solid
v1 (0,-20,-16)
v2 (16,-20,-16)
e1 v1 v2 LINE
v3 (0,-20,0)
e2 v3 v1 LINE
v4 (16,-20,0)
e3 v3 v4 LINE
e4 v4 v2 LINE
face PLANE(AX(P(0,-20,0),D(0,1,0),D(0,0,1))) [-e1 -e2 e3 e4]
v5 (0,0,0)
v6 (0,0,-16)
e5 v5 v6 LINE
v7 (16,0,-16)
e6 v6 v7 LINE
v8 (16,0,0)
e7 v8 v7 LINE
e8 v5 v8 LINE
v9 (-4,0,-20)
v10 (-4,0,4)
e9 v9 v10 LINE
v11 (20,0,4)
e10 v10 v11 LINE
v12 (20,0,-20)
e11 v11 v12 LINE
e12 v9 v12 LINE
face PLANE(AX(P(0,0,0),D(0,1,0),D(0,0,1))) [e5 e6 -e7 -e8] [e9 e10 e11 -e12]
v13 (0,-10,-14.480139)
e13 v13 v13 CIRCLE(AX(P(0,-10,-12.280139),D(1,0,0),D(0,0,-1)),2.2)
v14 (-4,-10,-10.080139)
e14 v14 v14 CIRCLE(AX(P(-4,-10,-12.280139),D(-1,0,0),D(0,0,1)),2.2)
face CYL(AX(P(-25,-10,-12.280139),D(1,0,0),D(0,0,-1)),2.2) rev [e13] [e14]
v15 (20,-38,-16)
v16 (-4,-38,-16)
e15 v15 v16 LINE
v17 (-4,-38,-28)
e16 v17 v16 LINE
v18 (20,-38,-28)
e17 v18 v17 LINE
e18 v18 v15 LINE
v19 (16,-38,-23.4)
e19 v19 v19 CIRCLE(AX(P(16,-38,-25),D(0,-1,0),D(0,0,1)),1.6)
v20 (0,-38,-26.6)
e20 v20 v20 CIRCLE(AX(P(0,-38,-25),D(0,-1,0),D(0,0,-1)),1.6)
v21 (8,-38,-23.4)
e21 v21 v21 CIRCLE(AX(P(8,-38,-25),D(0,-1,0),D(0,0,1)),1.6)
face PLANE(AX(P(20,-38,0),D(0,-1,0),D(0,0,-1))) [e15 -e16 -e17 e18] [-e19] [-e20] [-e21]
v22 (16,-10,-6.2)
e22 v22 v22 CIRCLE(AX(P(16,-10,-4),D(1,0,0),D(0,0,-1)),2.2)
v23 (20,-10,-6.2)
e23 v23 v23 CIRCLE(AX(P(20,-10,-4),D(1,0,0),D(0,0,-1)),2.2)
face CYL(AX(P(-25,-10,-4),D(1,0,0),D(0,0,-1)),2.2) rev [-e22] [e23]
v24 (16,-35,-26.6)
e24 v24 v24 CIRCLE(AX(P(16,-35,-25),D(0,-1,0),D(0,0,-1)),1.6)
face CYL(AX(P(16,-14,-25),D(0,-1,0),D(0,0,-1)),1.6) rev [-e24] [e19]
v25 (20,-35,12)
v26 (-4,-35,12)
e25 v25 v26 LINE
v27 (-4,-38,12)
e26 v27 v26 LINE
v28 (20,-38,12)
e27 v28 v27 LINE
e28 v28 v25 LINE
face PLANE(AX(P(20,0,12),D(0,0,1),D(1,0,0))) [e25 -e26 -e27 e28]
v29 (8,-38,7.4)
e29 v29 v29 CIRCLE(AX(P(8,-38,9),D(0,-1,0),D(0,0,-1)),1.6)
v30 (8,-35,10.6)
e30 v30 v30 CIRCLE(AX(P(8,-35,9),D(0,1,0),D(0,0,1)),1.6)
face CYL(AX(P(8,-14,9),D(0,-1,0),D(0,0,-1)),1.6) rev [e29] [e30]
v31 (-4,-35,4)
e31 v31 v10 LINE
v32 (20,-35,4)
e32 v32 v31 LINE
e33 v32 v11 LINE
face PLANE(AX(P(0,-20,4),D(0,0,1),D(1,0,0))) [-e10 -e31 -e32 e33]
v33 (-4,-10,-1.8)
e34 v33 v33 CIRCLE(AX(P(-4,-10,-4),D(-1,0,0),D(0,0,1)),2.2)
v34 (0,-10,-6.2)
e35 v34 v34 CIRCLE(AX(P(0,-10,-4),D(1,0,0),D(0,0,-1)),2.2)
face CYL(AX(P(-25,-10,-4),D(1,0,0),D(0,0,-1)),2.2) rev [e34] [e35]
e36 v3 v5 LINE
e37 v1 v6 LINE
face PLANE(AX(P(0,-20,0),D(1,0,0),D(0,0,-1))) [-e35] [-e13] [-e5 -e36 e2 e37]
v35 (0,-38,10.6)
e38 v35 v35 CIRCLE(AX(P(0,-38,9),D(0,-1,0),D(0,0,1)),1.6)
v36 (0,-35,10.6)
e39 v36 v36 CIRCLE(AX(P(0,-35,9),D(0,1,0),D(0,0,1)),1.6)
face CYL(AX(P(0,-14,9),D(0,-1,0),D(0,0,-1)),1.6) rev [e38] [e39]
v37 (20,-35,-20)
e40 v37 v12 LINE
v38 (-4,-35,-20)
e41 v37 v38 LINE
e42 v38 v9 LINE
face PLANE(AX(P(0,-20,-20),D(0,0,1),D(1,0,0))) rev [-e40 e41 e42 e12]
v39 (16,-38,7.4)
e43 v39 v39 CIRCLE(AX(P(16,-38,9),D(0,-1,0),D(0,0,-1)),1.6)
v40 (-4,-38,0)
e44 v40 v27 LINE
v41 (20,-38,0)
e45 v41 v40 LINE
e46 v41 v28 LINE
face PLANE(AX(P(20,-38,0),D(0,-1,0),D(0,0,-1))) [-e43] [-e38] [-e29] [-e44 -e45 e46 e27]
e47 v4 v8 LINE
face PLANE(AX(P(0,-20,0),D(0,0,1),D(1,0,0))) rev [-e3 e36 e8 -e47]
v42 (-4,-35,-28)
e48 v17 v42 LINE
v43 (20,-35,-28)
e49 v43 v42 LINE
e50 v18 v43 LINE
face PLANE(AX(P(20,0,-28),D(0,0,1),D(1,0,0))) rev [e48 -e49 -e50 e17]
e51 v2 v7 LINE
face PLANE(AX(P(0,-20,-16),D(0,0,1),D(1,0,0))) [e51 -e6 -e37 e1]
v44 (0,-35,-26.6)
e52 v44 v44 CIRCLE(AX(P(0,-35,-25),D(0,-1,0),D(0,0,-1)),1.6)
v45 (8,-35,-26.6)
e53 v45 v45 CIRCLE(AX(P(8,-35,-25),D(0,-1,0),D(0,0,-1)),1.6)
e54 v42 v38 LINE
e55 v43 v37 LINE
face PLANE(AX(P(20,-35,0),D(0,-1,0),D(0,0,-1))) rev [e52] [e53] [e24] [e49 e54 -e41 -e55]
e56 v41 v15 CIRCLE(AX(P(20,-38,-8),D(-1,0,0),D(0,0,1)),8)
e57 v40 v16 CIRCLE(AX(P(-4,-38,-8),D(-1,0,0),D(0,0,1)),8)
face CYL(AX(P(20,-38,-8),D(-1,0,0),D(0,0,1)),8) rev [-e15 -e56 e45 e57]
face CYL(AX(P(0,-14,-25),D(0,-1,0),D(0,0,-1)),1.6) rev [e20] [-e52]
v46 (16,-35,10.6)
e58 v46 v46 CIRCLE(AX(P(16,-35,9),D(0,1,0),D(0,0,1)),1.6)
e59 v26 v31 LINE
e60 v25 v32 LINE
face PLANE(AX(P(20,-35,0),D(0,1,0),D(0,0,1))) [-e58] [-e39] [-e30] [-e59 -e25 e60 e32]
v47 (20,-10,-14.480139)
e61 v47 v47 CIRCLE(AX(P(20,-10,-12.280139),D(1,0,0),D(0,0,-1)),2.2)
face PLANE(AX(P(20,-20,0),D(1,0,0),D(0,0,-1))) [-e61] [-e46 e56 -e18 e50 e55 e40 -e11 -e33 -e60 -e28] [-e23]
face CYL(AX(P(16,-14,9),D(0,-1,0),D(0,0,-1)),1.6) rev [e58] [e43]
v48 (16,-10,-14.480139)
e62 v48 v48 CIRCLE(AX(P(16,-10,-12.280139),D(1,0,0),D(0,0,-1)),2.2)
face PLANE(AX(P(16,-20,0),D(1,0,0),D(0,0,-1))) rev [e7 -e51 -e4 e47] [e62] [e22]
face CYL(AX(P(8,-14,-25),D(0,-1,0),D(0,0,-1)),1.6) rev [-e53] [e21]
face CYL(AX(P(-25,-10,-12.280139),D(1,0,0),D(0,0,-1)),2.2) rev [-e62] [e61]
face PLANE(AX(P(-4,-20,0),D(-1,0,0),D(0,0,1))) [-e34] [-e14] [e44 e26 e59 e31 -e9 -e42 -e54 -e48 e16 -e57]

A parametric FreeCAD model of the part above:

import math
import FreeCAD as App
import Part
import Sketcher


def add_polygon(sketch, points):
    """Adds a closed chain of lines whose ends are joined by coincident constraints."""
    first, n = sketch.GeometryCount, len(points)
    for a, b in zip(points, points[1:] + points[:1]):
        sketch.addGeometry(Part.LineSegment(App.Vector(*a, 0), App.Vector(*b, 0)), False)
    for i in range(n):
        sketch.addConstraint(Sketcher.Constraint("Coincident", first + i, 2, first + (i + 1) % n, 1))

doc = App.newDocument("Part")
body = doc.addObject("PartDesign::Body", "Body")

sketch1 = doc.addObject("Sketcher::SketchObject", "Sketch")
body.addObject(sketch1)
sketch1.AttachmentSupport = (doc.XZ_Plane, [""])
sketch1.MapMode = "FlatFace"
add_polygon(sketch1, [(-4, -20), (-4, 4), (20, 4), (20, -20)])
add_polygon(sketch1, [(16, 0), (0, 0), (0, -16), (16, -16)])
sketch1.addConstraint(Sketcher.Constraint("Vertical", 0))
sketch1.addConstraint(Sketcher.Constraint("Horizontal", 1))
sketch1.addConstraint(Sketcher.Constraint("Vertical", 2))
sketch1.addConstraint(Sketcher.Constraint("Horizontal", 3))
sketch1.addConstraint(Sketcher.Constraint("Horizontal", 4))
sketch1.addConstraint(Sketcher.Constraint("Vertical", 5))
sketch1.addConstraint(Sketcher.Constraint("Horizontal", 6))
sketch1.addConstraint(Sketcher.Constraint("Vertical", 7))
sketch1.addConstraint(Sketcher.Constraint("Coincident", 4, 2, -1, 1))
sketch1.addConstraint(Sketcher.Constraint("Equal", 3, 0))
sketch1.addConstraint(Sketcher.Constraint("Equal", 6, 5))
sketch1.addConstraint(Sketcher.Constraint("DistanceX", 1, 1, 1, 2, 24.0))
sketch1.addConstraint(Sketcher.Constraint("DistanceX", 4, 2, 4, 1, 16.0))
sketch1.addConstraint(Sketcher.Constraint("DistanceX", 0, 2, -1, 1, 4.0))
sketch1.addConstraint(Sketcher.Constraint("DistanceY", -1, 1, 0, 2, 4.0))
pad1 = doc.addObject("PartDesign::Pad", "Pad")
body.addObject(pad1)
pad1.Profile = sketch1
pad1.Length = 20

sketch2 = doc.addObject("Sketcher::SketchObject", "Sketch001")
body.addObject(sketch2)
sketch2.AttachmentSupport = (doc.XZ_Plane, [""])
sketch2.MapMode = "FlatFace"
sketch2.AttachmentOffset = App.Placement(App.Vector(0, 0, 20), App.Rotation())
add_polygon(sketch2, [(-4, 4), (-4, -20), (20, -20), (20, 4)])
sketch2.addConstraint(Sketcher.Constraint("Vertical", 0))
sketch2.addConstraint(Sketcher.Constraint("Horizontal", 1))
sketch2.addConstraint(Sketcher.Constraint("Vertical", 2))
sketch2.addConstraint(Sketcher.Constraint("Horizontal", 3))
sketch2.addConstraint(Sketcher.Constraint("Equal", 3, 0))
sketch2.addConstraint(Sketcher.Constraint("DistanceX", 1, 1, 1, 2, 24.0))
sketch2.addConstraint(Sketcher.Constraint("DistanceX", 0, 2, -1, 1, 4.0))
sketch2.addConstraint(Sketcher.Constraint("DistanceY", 0, 2, -1, 1, 20.0))
pad2 = doc.addObject("PartDesign::Pad", "Pad001")
body.addObject(pad2)
pad2.Profile = sketch2
pad2.Length = 10

sketch3 = doc.addObject("Sketcher::SketchObject", "Sketch002")
body.addObject(sketch3)
sketch3.AttachmentSupport = (doc.YZ_Plane, [""])
sketch3.MapMode = "FlatFace"
sketch3.AttachmentOffset = App.Placement(App.Vector(0, 0, -4), App.Rotation())
sketch3.addGeometry(Part.LineSegment(App.Vector(-38, 12, 0), App.Vector(-35, 12, 0)), False)
sketch3.addGeometry(Part.LineSegment(App.Vector(-35, 12, 0), App.Vector(-35, 4, 0)), False)
sketch3.addGeometry(Part.LineSegment(App.Vector(-35, 4, 0), App.Vector(-30, 4, 0)), False)
sketch3.addGeometry(Part.LineSegment(App.Vector(-30, 4, 0), App.Vector(-30, -8, 0)), False)
sketch3.addGeometry(Part.ArcOfCircle(Part.Circle(App.Vector(-38, -8, 0), App.Vector(0, 0, 1), 8), math.radians(0), math.radians(90)), False)
sketch3.addGeometry(Part.LineSegment(App.Vector(-38, 0, 0), App.Vector(-38, 12, 0)), False)
sketch3.addGeometry(Part.ArcOfCircle(Part.Circle(App.Vector(-38, -8, 0), App.Vector(0, 0, 1), 8), math.radians(-90), math.radians(0)), False)
sketch3.addGeometry(Part.LineSegment(App.Vector(-30, -8, 0), App.Vector(-30, -20, 0)), False)
sketch3.addGeometry(Part.LineSegment(App.Vector(-30, -20, 0), App.Vector(-35, -20, 0)), False)
sketch3.addGeometry(Part.LineSegment(App.Vector(-35, -20, 0), App.Vector(-35, -28, 0)), False)
sketch3.addGeometry(Part.LineSegment(App.Vector(-35, -28, 0), App.Vector(-38, -28, 0)), False)
sketch3.addGeometry(Part.LineSegment(App.Vector(-38, -28, 0), App.Vector(-38, -16, 0)), False)
sketch3.addConstraint(Sketcher.Constraint("Coincident", 0, 2, 1, 1))
sketch3.addConstraint(Sketcher.Constraint("Coincident", 1, 2, 2, 1))
sketch3.addConstraint(Sketcher.Constraint("Coincident", 2, 2, 3, 1))
sketch3.addConstraint(Sketcher.Constraint("Tangent", 3, 2, 4, 1))
sketch3.addConstraint(Sketcher.Constraint("Coincident", 4, 2, 5, 1))
sketch3.addConstraint(Sketcher.Constraint("Coincident", 5, 2, 0, 1))
sketch3.addConstraint(Sketcher.Constraint("Tangent", 6, 2, 7, 1))
sketch3.addConstraint(Sketcher.Constraint("Coincident", 7, 2, 8, 1))
sketch3.addConstraint(Sketcher.Constraint("Coincident", 8, 2, 9, 1))
sketch3.addConstraint(Sketcher.Constraint("Coincident", 9, 2, 10, 1))
sketch3.addConstraint(Sketcher.Constraint("Coincident", 10, 2, 11, 1))
sketch3.addConstraint(Sketcher.Constraint("Coincident", 11, 2, 6, 1))
sketch3.addConstraint(Sketcher.Constraint("Horizontal", 0))
sketch3.addConstraint(Sketcher.Constraint("Vertical", 1))
sketch3.addConstraint(Sketcher.Constraint("Horizontal", 2))
sketch3.addConstraint(Sketcher.Constraint("Vertical", 3))
sketch3.addConstraint(Sketcher.Constraint("Vertical", 5))
sketch3.addConstraint(Sketcher.Constraint("Vertical", 7))
sketch3.addConstraint(Sketcher.Constraint("Horizontal", 8))
sketch3.addConstraint(Sketcher.Constraint("Vertical", 9))
sketch3.addConstraint(Sketcher.Constraint("Horizontal", 10))
sketch3.addConstraint(Sketcher.Constraint("Vertical", 11))
sketch3.addConstraint(Sketcher.Constraint("Coincident", 6, 3, 4, 3))
sketch3.addConstraint(Sketcher.Constraint("Equal", 4, 6))
sketch3.addConstraint(Sketcher.Constraint("PointOnObject", 4, 2, -1))
sketch3.addConstraint(Sketcher.Constraint("Vertical", 6, 3, 4, 2))
sketch3.addConstraint(Sketcher.Constraint("Vertical", 1, 2, 8, 2))
sketch3.addConstraint(Sketcher.Constraint("Vertical", 5, 2, 10, 2))
sketch3.addConstraint(Sketcher.Constraint("Equal", 3, 5))
sketch3.addConstraint(Sketcher.Constraint("Equal", 5, 7))
sketch3.addConstraint(Sketcher.Constraint("Equal", 1, 9))
sketch3.addConstraint(Sketcher.Constraint("Radius", 4, 8.0))
sketch3.addConstraint(Sketcher.Constraint("DistanceX", 0, 1, 0, 2, 3.0))
sketch3.addConstraint(Sketcher.Constraint("DistanceY", 3, 2, 3, 1, 12.0))
sketch3.addConstraint(Sketcher.Constraint("DistanceX", 4, 3, -1, 1, 38.0))
pad3 = doc.addObject("PartDesign::Pad", "Pad002")
body.addObject(pad3)
pad3.Profile = sketch3
pad3.Length = 24

sketch4 = doc.addObject("Sketcher::SketchObject", "Sketch003")
body.addObject(sketch4)
sketch4.AttachmentSupport = (doc.XZ_Plane, [""])
sketch4.MapMode = "FlatFace"
sketch4.AttachmentOffset = App.Placement(App.Vector(0, 0, 38), App.Rotation())
sketch4.addGeometry(Part.Circle(App.Vector(8, 9, 0), App.Vector(0, 0, 1), 1.6), False)
sketch4.addGeometry(Part.Circle(App.Vector(16, 9, 0), App.Vector(0, 0, 1), 1.6), False)
sketch4.addGeometry(Part.Circle(App.Vector(0, 9, 0), App.Vector(0, 0, 1), 1.6), False)
sketch4.addGeometry(Part.Circle(App.Vector(0, -25, 0), App.Vector(0, 0, 1), 1.6), False)
sketch4.addGeometry(Part.Circle(App.Vector(8, -25, 0), App.Vector(0, 0, 1), 1.6), False)
sketch4.addGeometry(Part.Circle(App.Vector(16, -25, 0), App.Vector(0, 0, 1), 1.6), False)
sketch4.addConstraint(Sketcher.Constraint("Equal", 0, 1))
sketch4.addConstraint(Sketcher.Constraint("Equal", 1, 2))
sketch4.addConstraint(Sketcher.Constraint("Equal", 2, 3))
sketch4.addConstraint(Sketcher.Constraint("Equal", 3, 4))
sketch4.addConstraint(Sketcher.Constraint("Equal", 4, 5))
sketch4.addConstraint(Sketcher.Constraint("PointOnObject", 2, 3, -2))
sketch4.addConstraint(Sketcher.Constraint("PointOnObject", 3, 3, -2))
sketch4.addConstraint(Sketcher.Constraint("Horizontal", 0, 3, 1, 3))
sketch4.addConstraint(Sketcher.Constraint("Horizontal", 1, 3, 2, 3))
sketch4.addConstraint(Sketcher.Constraint("Horizontal", 3, 3, 4, 3))
sketch4.addConstraint(Sketcher.Constraint("Horizontal", 4, 3, 5, 3))
sketch4.addConstraint(Sketcher.Constraint("Vertical", 0, 3, 4, 3))
sketch4.addConstraint(Sketcher.Constraint("Vertical", 1, 3, 5, 3))
sketch4.addConstraint(Sketcher.Constraint("Diameter", 0, 3.2))
sketch4.addConstraint(Sketcher.Constraint("DistanceX", -1, 1, 0, 3, 8.0))
sketch4.addConstraint(Sketcher.Constraint("DistanceY", -1, 1, 0, 3, 9.0))
sketch4.addConstraint(Sketcher.Constraint("DistanceX", -1, 1, 1, 3, 16.0))
sketch4.addConstraint(Sketcher.Constraint("DistanceY", 3, 3, -1, 1, 25.0))
pocket1 = doc.addObject("PartDesign::Pocket", "Pocket")
body.addObject(pocket1)
pocket1.Profile = sketch4
pocket1.Length = 24

sketch5 = doc.addObject("Sketcher::SketchObject", "Sketch004")
body.addObject(sketch5)
sketch5.AttachmentSupport = (doc.YZ_Plane, [""])
sketch5.MapMode = "FlatFace"
sketch5.addGeometry(Part.Circle(App.Vector(-10, -12.3, 0), App.Vector(0, 0, 1), 2.2), False)
sketch5.addGeometry(Part.Circle(App.Vector(-10, -4, 0), App.Vector(0, 0, 1), 2.2), False)
sketch5.addConstraint(Sketcher.Constraint("Equal", 0, 1))
sketch5.addConstraint(Sketcher.Constraint("Vertical", 0, 3, 1, 3))
sketch5.addConstraint(Sketcher.Constraint("Diameter", 0, 4.4))
sketch5.addConstraint(Sketcher.Constraint("DistanceX", 0, 3, -1, 1, 10.0))
sketch5.addConstraint(Sketcher.Constraint("DistanceY", 1, 3, -1, 1, 4.0))
sketch5.addConstraint(Sketcher.Constraint("DistanceY", 0, 3, -1, 1, 12.280139))
pocket2 = doc.addObject("PartDesign::Pocket", "Pocket001")
body.addObject(pocket2)
pocket2.Profile = sketch5
pocket2.Length = 50
pocket2.Midplane = True

doc.recompute()
